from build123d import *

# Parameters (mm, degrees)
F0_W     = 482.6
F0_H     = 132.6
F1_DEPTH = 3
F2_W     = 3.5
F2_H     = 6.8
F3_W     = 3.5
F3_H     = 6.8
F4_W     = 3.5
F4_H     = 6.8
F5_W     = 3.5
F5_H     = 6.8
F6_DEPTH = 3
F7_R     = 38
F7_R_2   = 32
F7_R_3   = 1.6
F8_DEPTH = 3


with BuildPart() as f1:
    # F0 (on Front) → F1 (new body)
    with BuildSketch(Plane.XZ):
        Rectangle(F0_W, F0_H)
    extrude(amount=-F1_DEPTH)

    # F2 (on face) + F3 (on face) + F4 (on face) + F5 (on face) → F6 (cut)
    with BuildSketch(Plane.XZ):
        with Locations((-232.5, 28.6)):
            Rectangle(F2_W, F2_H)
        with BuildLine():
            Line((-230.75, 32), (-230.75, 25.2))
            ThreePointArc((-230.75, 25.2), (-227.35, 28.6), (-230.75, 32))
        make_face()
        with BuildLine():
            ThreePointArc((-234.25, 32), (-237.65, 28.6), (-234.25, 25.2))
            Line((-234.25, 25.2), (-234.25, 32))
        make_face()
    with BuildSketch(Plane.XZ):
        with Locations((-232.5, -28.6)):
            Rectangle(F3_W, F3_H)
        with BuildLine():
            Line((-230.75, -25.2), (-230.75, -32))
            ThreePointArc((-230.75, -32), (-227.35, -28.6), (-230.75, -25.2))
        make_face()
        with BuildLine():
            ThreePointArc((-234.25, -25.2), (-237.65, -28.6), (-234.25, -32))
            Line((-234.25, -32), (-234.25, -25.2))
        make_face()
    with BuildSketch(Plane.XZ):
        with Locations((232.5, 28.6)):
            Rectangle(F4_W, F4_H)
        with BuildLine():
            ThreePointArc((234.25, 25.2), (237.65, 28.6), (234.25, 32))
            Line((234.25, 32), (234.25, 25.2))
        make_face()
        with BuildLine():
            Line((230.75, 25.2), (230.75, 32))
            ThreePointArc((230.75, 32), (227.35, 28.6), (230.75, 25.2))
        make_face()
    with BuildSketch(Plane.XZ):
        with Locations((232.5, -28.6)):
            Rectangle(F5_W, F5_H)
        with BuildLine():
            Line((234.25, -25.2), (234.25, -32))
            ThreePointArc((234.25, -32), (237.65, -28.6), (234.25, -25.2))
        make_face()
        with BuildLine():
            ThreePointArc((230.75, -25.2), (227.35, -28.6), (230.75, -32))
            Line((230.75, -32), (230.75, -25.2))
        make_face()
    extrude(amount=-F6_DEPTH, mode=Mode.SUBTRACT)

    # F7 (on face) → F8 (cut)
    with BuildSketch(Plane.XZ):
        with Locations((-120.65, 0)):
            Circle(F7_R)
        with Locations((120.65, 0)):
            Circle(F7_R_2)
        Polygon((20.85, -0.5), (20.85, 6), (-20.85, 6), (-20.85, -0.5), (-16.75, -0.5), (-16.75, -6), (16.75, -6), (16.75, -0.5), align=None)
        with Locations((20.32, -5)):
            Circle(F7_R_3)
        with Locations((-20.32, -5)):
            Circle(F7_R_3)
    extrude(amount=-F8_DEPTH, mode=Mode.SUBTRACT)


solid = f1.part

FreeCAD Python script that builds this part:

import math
import FreeCAD as App
import Part
import Sketcher
from FreeCAD import Vector


def add_polygon(sketch, points):
    """Adds a closed chain of lines whose ends are joined by coincident constraints."""
    first, n = sketch.GeometryCount, len(points)
    for a, b in zip(points, points[1:] + points[:1]):
        sketch.addGeometry(Part.LineSegment(App.Vector(*a, 0), App.Vector(*b, 0)), False)
    for i in range(n):
        sketch.addConstraint(Sketcher.Constraint("Coincident", first + i, 2, first + (i + 1) % n, 1))

doc = App.newDocument("Part")
body = doc.addObject("PartDesign::Body", "Body")

sketch1 = doc.addObject("Sketcher::SketchObject", "Sketch")
body.addObject(sketch1)
sketch1.AttachmentSupport = (doc.XZ_Plane, [""])
sketch1.MapMode = "FlatFace"
add_polygon(sketch1, [(-241.3, 66.3), (-241.3, -66.3), (241.3, -66.3), (241.3, 66.3)])
sketch1.addConstraint([
    Sketcher.Constraint("Vertical", 0),
    Sketcher.Constraint("Horizontal", 1),
    Sketcher.Constraint("Vertical", 2),
    Sketcher.Constraint("Horizontal", 3),
    Sketcher.Constraint("Symmetric", 0, 2, 2, 2, -1, 1),
    Sketcher.Constraint("DistanceX", 1, 1, 1, 2, 482.6),
    Sketcher.Constraint("DistanceY", 0, 2, 0, 1, 132.6),
])
pad1 = doc.addObject("PartDesign::Pad", "Pad")
body.addObject(pad1)
pad1.Profile = sketch1
pad1.Length = 3
pad1.Reversed = True

sketch2 = doc.addObject("Sketcher::SketchObject", "Sketch001")
body.addObject(sketch2)
sketch2.AttachmentSupport = (doc.XZ_Plane, [""])
sketch2.MapMode = "FlatFace"
sketch2.addGeometry([
    Part.LineSegment(Vector(-234.25, 25.2, 0), Vector(-230.75, 25.2, 0)),
    Part.ArcOfCircle(Part.Circle(Vector(-230.75, 28.6, 0), Vector(0, 0, 1), 3.4), math.radians(-90), math.radians(90)),
    Part.LineSegment(Vector(-230.75, 32, 0), Vector(-234.25, 32, 0)),
    Part.ArcOfCircle(Part.Circle(Vector(-234.25, 28.6, 0), Vector(0, 0, 1), 3.4), math.radians(90), math.radians(270)),
    Part.LineSegment(Vector(-234.25, -32, 0), Vector(-230.75, -32, 0)),
    Part.ArcOfCircle(Part.Circle(Vector(-230.75, -28.6, 0), Vector(0, 0, 1), 3.4), math.radians(-90), math.radians(90)),
    Part.LineSegment(Vector(-230.75, -25.2, 0), Vector(-234.25, -25.2, 0)),
    Part.ArcOfCircle(Part.Circle(Vector(-234.25, -28.6, 0), Vector(0, 0, 1), 3.4), math.radians(90), math.radians(270)),
    Part.LineSegment(Vector(230.75, 25.2, 0), Vector(234.25, 25.2, 0)),
    Part.ArcOfCircle(Part.Circle(Vector(234.25, 28.6, 0), Vector(0, 0, 1), 3.4), math.radians(-90), math.radians(90)),
    Part.LineSegment(Vector(234.25, 32, 0), Vector(230.75, 32, 0)),
    Part.ArcOfCircle(Part.Circle(Vector(230.75, 28.6, 0), Vector(0, 0, 1), 3.4), math.radians(90), math.radians(270)),
    Part.LineSegment(Vector(230.75, -32, 0), Vector(234.25, -32, 0)),
    Part.ArcOfCircle(Part.Circle(Vector(234.25, -28.6, 0), Vector(0, 0, 1), 3.4), math.radians(-90), math.radians(90)),
    Part.LineSegment(Vector(234.25, -25.2, 0), Vector(230.75, -25.2, 0)),
    Part.ArcOfCircle(Part.Circle(Vector(230.75, -28.6, 0), Vector(0, 0, 1), 3.4), math.radians(90), math.radians(270)),
], False)
sketch2.addConstraint([
    Sketcher.Constraint("Tangent", 0, 2, 1, 1),
    Sketcher.Constraint("Tangent", 1, 2, 2, 1),
    Sketcher.Constraint("Tangent", 2, 2, 3, 1),
    Sketcher.Constraint("Tangent", 3, 2, 0, 1),
    Sketcher.Constraint("Tangent", 4, 2, 5, 1),
    Sketcher.Constraint("Tangent", 5, 2, 6, 1),
    Sketcher.Constraint("Tangent", 6, 2, 7, 1),
    Sketcher.Constraint("Tangent", 7, 2, 4, 1),
    Sketcher.Constraint("Tangent", 8, 2, 9, 1),
    Sketcher.Constraint("Tangent", 9, 2, 10, 1),
    Sketcher.Constraint("Tangent", 10, 2, 11, 1),
    Sketcher.Constraint("Tangent", 11, 2, 8, 1),
    Sketcher.Constraint("Tangent", 12, 2, 13, 1),
    Sketcher.Constraint("Tangent", 13, 2, 14, 1),
    Sketcher.Constraint("Tangent", 14, 2, 15, 1),
    Sketcher.Constraint("Tangent", 15, 2, 12, 1),
    Sketcher.Constraint("Horizontal", 0),
    Sketcher.Constraint("Horizontal", 2),
    Sketcher.Constraint("Horizontal", 4),
    Sketcher.Constraint("Horizontal", 6),
    Sketcher.Constraint("Horizontal", 8),
    Sketcher.Constraint("Horizontal", 10),
    Sketcher.Constraint("Horizontal", 12),
    Sketcher.Constraint("Horizontal", 14),
    Sketcher.Constraint("Equal", 3, 5),
    Sketcher.Constraint("Equal", 7, 9),
    Sketcher.Constraint("Equal", 11, 13),
    Sketcher.Constraint("Symmetric", 7, 3, 9, 3, -1, 1),
    Sketcher.Constraint("Symmetric", 3, 3, 13, 3, -1, 1),
    Sketcher.Constraint("Symmetric", 3, 3, 9, 3, -2),
    Sketcher.Constraint("Vertical", 1, 3, 5, 3),
    Sketcher.Constraint("Vertical", 11, 3, 15, 3),
    Sketcher.Constraint("Equal", 6, 8),
    Sketcher.Constraint("Radius", 1, 3.4),
    Sketcher.Constraint("DistanceX", 0, 1, 0, 2, 3.5),
    Sketcher.Constraint("DistanceY", -1, 1, 1, 2, 32.0),
    Sketcher.Constraint("DistanceX", 1, 3, 9, 3, 465.0),
])
pocket1 = doc.addObject("PartDesign::Pocket", "Pocket")
body.addObject(pocket1)
pocket1.Profile = sketch2
pocket1.Length = 3

sketch3 = doc.addObject("Sketcher::SketchObject", "Sketch002")
body.addObject(sketch3)
sketch3.AttachmentSupport = (doc.XZ_Plane, [""])
sketch3.MapMode = "FlatFace"
sketch3.addGeometry(Part.Circle(Vector(-120.65, 0, 0), Vector(0, 0, 1), 38), False)
sketch3.addGeometry(Part.Circle(Vector(120.65, 0, 0), Vector(0, 0, 1), 32), False)
add_polygon(sketch3, [(20.85, -0.5), (20.85, 6), (-20.85, 6), (-20.85, -0.5), (-16.75, -0.5), (-16.75, -6), (16.75, -6), (16.75, -0.5)])
sketch3.addGeometry(Part.Circle(Vector(20.32, -5, 0), Vector(0, 0, 1), 1.6), False)
sketch3.addGeometry(Part.Circle(Vector(-20.32, -5, 0), Vector(0, 0, 1), 1.6), False)
sketch3.addConstraint([
    Sketcher.Constraint("Vertical", 2),
    Sketcher.Constraint("Horizontal", 3),
    Sketcher.Constraint("Vertical", 4),
    Sketcher.Constraint("Horizontal", 5),
    Sketcher.Constraint("Vertical", 6),
    Sketcher.Constraint("Horizontal", 7),
    Sketcher.Constraint("Vertical", 8),
    Sketcher.Constraint("Horizontal", 9),
    Sketcher.Constraint("Equal", 10, 11),
    Sketcher.Constraint("Symmetric", 0, 3, 1, 3, -1, 1),
    Sketcher.Constraint("Symmetric", 10, 3, 11, 3, -2),
    Sketcher.Constraint("Symmetric", 5, 2, 8, 2, -2),
    Sketcher.Constraint("PointOnObject", 0, 3, -1),
    Sketcher.Constraint("Equal", 5, 9),
    Sketcher.Constraint("Diameter", 0, 76.0),
    Sketcher.Constraint("Diameter", 1, 64.0),
    Sketcher.Constraint("Diameter", 10, 3.2),
    Sketcher.Constraint("DistanceX", 3, 2, 3, 1, 41.7),
    Sketcher.Constraint("DistanceX", 5, 1, 5, 2, 4.1),
    Sketcher.Constraint("DistanceY", 2, 1, 2, 2, 6.5),
    Sketcher.Constraint("DistanceY", 6, 2, 6, 1, 5.5),
    Sketcher.Constraint("DistanceY", 10, 3, -1, 1, 5.0),
    Sketcher.Constraint("DistanceY", -1, 1, 2, 2, 6.0),
    Sketcher.Constraint("DistanceX", 0, 3, 1, 3, 241.3),
    Sketcher.Constraint("DistanceX", -1, 1, 10, 3, 20.32),
])
pocket2 = doc.addObject("PartDesign::Pocket", "Pocket001")
body.addObject(pocket2)
pocket2.Profile = sketch3
pocket2.Length = 3

doc.recompute()
